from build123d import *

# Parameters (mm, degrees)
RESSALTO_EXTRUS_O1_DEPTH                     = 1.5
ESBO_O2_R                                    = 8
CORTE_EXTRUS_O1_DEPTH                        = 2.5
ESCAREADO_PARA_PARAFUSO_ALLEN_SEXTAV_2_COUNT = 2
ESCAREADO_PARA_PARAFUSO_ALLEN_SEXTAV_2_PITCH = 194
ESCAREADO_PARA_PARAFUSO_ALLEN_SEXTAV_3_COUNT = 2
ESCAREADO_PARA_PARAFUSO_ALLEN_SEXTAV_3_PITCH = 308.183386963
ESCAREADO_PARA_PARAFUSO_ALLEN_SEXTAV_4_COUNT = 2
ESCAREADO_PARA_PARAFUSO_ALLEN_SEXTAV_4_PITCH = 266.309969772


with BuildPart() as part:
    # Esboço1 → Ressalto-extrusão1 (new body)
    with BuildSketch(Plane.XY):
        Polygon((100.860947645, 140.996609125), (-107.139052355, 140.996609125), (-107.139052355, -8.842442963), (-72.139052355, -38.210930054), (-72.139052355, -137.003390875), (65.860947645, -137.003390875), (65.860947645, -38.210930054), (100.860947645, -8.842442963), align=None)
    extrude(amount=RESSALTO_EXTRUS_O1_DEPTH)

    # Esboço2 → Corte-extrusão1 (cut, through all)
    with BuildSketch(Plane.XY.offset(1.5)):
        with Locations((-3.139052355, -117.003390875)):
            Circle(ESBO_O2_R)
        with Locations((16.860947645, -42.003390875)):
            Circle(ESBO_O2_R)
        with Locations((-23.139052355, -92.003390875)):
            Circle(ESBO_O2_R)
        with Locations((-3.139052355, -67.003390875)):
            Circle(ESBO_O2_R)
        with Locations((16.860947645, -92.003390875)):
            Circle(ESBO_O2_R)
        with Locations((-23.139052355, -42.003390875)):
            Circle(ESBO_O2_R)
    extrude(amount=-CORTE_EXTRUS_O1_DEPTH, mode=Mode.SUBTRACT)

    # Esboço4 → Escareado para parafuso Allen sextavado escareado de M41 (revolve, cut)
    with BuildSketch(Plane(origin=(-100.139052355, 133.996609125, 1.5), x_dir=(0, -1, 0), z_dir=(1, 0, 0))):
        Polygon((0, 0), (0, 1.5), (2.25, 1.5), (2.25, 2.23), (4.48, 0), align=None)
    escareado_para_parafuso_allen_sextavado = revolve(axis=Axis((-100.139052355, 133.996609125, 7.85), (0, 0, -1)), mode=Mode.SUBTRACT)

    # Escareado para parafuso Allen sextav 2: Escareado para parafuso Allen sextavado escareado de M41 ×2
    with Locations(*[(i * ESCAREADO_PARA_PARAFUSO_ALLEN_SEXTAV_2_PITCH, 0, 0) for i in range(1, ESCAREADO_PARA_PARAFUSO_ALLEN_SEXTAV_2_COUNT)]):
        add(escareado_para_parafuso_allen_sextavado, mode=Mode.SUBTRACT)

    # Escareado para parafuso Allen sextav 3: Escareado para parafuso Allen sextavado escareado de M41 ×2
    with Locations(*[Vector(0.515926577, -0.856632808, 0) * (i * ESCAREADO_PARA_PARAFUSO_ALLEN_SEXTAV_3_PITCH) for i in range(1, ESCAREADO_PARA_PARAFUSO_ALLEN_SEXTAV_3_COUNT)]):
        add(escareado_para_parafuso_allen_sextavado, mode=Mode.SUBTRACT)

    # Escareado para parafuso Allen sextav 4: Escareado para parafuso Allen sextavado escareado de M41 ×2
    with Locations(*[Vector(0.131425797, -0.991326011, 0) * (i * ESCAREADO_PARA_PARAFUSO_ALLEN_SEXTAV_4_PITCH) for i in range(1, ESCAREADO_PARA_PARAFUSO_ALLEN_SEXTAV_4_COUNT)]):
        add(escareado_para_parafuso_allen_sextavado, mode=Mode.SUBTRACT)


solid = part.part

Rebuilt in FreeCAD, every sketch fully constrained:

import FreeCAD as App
import Part
import Sketcher
Q = App.Units.Quantity


def add_polygon(sketch, points):
    """Adds a closed chain of lines whose ends are joined by coincident constraints."""
    first, n = sketch.GeometryCount, len(points)
    for a, b in zip(points, points[1:] + points[:1]):
        sketch.addGeometry(Part.LineSegment(App.Vector(*a, 0), App.Vector(*b, 0)), False)
    for i in range(n):
        sketch.addConstraint(Sketcher.Constraint("Coincident", first + i, 2, first + (i + 1) % n, 1))

doc = App.newDocument("Part")
params = doc.addObject("Spreadsheet::Sheet", "Params")
for row, (alias, value) in enumerate([
    ("sketch1_width", "208 mm"),
    ("sketch1_width2", "138 mm"),
    ("pad1_length", "1.5 mm"),
    ("sketch2_diameter", "16 mm"),
    ("sketch3_height", "1.5 mm"),
    ("sketch3_width", "4.48 mm"),
    ("sketch3_width2", "2.25 mm"),
    ("groove_angle", "360 deg"),
    ("linearpattern_pitch", "194 mm"),
    ("linearpattern2_pitch", "308.183387 mm"),
    ("linearpattern3_pitch", "266.30997 mm"),
], start=1):
    params.set(f"A{row}", alias)
    params.set(f"B{row}", "=" + value)
    params.setAlias(f"B{row}", alias)

body = doc.addObject("PartDesign::Body", "Body")

# Sketch on XY plane
sketch1 = body.newObject("Sketcher::SketchObject", "Sketch")
sketch1.AttachmentSupport = (doc.getObject("XY_Plane"), [""])
sketch1.MapMode = "FlatFace"
add_polygon(sketch1, [(101, 141), (-107, 141), (-107, -9), (-72, -38), (-72, -137), (66, -137), (66, -38), (101, -9)])  # lines 0-7
sketch1.addConstraint([
    Sketcher.Constraint("Horizontal", 0),
    Sketcher.Constraint("Vertical", 1),
    Sketcher.Constraint("Vertical", 3),
    Sketcher.Constraint("Horizontal", 4),
    Sketcher.Constraint("Vertical", 5),
    Sketcher.Constraint("Vertical", 7),
    Sketcher.Constraint("Horizontal", 2, 2, 5, 2),
    Sketcher.Constraint("Horizontal", 1, 2, 6, 2),
    Sketcher.Constraint("Equal", 2, 6),
    Sketcher.Constraint("DistanceX", 0, 2, 0, 1, Q("208 mm")),
    Sketcher.Constraint("DistanceX", 4, 1, 4, 2, Q("138 mm")),
    Sketcher.Constraint("Angle", 2, Q("-40 deg")),
    Sketcher.Constraint("DistanceY", 3, 2, 0, 2, Q("278 mm")),
    Sketcher.Constraint("DistanceY", 3, 2, 3, 1, Q("98.792461 mm")),
    Sketcher.Constraint("DistanceY", -1, 1, 0, 2, Q("140.996609 mm")),
    Sketcher.Constraint("DistanceX", 0, 2, -1, 1, Q("107.139052 mm")),
])
sketch1.setExpression("Constraints[17]", "Params.sketch1_width")
sketch1.setExpression("Constraints[18]", "Params.sketch1_width2")
pad1 = body.newObject("PartDesign::Pad", "Pad")
pad1.Profile = sketch1
pad1.setExpression("Length", "Params.pad1_length")

# Sketch on XY plane
sketch2 = body.newObject("Sketcher::SketchObject", "Sketch001")
sketch2.AttachmentSupport = (doc.getObject("XY_Plane"), [""])
sketch2.MapMode = "FlatFace"
sketch2.AttachmentOffset = App.Placement(App.Vector(0, 0, 1.5), App.Rotation())
sketch2.addGeometry([
    Part.Circle(App.Vector(-3, -117, 0), App.Vector(0, 0, 1), 8),  # 0
    Part.Circle(App.Vector(17, -42, 0), App.Vector(0, 0, 1), 8),  # 1
    Part.Circle(App.Vector(-23, -92, 0), App.Vector(0, 0, 1), 8),  # 2
    Part.Circle(App.Vector(-3, -67, 0), App.Vector(0, 0, 1), 8),  # 3
    Part.Circle(App.Vector(17, -92, 0), App.Vector(0, 0, 1), 8),  # 4
    Part.Circle(App.Vector(-23, -42, 0), App.Vector(0, 0, 1), 8),  # 5
], False)
sketch2.addConstraint([
    Sketcher.Constraint("Equal", 0, 1),
    Sketcher.Constraint("Equal", 1, 2),
    Sketcher.Constraint("Equal", 2, 3),
    Sketcher.Constraint("Equal", 3, 4),
    Sketcher.Constraint("Equal", 4, 5),
    Sketcher.Constraint("Horizontal", 2, 3, 4, 3),
    Sketcher.Constraint("Horizontal", 1, 3, 5, 3),
    Sketcher.Constraint("Vertical", 0, 3, 3, 3),
    Sketcher.Constraint("Vertical", 1, 3, 4, 3),
    Sketcher.Constraint("Vertical", 2, 3, 5, 3),
    Sketcher.Constraint("Diameter", 0, Q("16 mm")),
    Sketcher.Constraint("DistanceX", 0, 3, 1, 3, Q("20 mm")),
    Sketcher.Constraint("DistanceY", 0, 3, 1, 3, Q("75 mm")),
    Sketcher.Constraint("DistanceX", 2, 3, 0, 3, Q("20 mm")),
    Sketcher.Constraint("DistanceY", 0, 3, 2, 3, Q("25 mm")),
    Sketcher.Constraint("DistanceY", 3, 3, 1, 3, Q("25 mm")),
    Sketcher.Constraint("DistanceY", 0, 3, -1, 1, Q("117.003391 mm")),
    Sketcher.Constraint("DistanceX", 0, 3, -1, 1, Q("3.139052 mm")),
])
sketch2.setExpression("Constraints[10]", "Params.sketch2_diameter")
pocket1 = body.newObject("PartDesign::Pocket", "Pocket")
pocket1.Profile = sketch2
pocket1.Type = "ThroughAll"

# Sketch on YZ plane
sketch3 = body.newObject("Sketcher::SketchObject", "Sketch002")
sketch3.AttachmentSupport = (doc.getObject("YZ_Plane"), [""])
sketch3.MapMode = "FlatFace"
sketch3.AttachmentOffset = App.Placement(App.Vector(0, 0, -100.139052), App.Rotation())
add_polygon(sketch3, [(134, 0), (134, 1.5), (129.5, 1.5), (131.7, -0.7), (131.7, 0)])  # lines 0-4
sketch3.addGeometry(Part.LineSegment(App.Vector(134, 1.5, 0), App.Vector(134, -0.7, 0)), True)  # axis
sketch3.addConstraint([
    Sketcher.Constraint("Vertical", 0),
    Sketcher.Constraint("Horizontal", 1),
    Sketcher.Constraint("Vertical", 3),
    Sketcher.Constraint("Horizontal", 4),
    Sketcher.Constraint("Vertical", 5),
    Sketcher.Constraint("Coincident", 5, 1, 0, 2),
    Sketcher.Constraint("PointOnObject", 3, 2, -1),
    Sketcher.Constraint("Horizontal", 2, 2, 5, 2),
    Sketcher.Constraint("Angle", 2, Q("-45 deg")),
    Sketcher.Constraint("DistanceY", 0, 1, 0, 2, Q("1.5 mm")),
    Sketcher.Constraint("DistanceX", 1, 2, 1, 1, Q("4.48 mm")),
    Sketcher.Constraint("DistanceX", 4, 1, 4, 2, Q("2.25 mm")),
    Sketcher.Constraint("DistanceX", -1, 1, 0, 2, Q("133.996609 mm")),
])
sketch3.setExpression("Constraints[14]", "Params.sketch3_height")
sketch3.setExpression("Constraints[15]", "Params.sketch3_width")
sketch3.setExpression("Constraints[16]", "Params.sketch3_width2")
groove = body.newObject("PartDesign::Groove", "Groove")
groove.Profile = sketch3
groove.ReferenceAxis = (sketch3, ["Axis0"])
groove.setExpression("Angle", "Params.groove_angle")
doc.recompute()

linearpattern = body.newObject("PartDesign::LinearPattern", "LinearPattern")
linearpattern.Originals = [groove]
linearpattern.Direction = (doc.getObject("X_Axis"), [""])
linearpattern.Mode = "offset"
linearpattern.setExpression("Offset", "Params.linearpattern_pitch")
linearpattern.Occurrences = 2
body.Tip = linearpattern
doc.recompute()

datumline = body.newObject("PartDesign::Line", "DatumLine")
datumline.Placement = App.Placement(App.Vector(0, 0, 0), App.Rotation(App.Vector(0, 0, 1), App.Vector(0.515926577, -0.856632808, 0)))
linearpattern2 = body.newObject("PartDesign::LinearPattern", "LinearPattern001")
linearpattern2.Originals = [groove]
linearpattern2.Direction = (datumline, [""])
linearpattern2.Mode = "offset"
linearpattern2.setExpression("Offset", "Params.linearpattern2_pitch")
linearpattern2.Occurrences = 2
body.Tip = linearpattern2
doc.recompute()

datumline2 = body.newObject("PartDesign::Line", "DatumLine001")
datumline2.Placement = App.Placement(App.Vector(0, 0, 0), App.Rotation(App.Vector(0, 0, 1), App.Vector(0.131425797, -0.991326011, 0)))
linearpattern3 = body.newObject("PartDesign::LinearPattern", "LinearPattern002")
linearpattern3.Originals = [groove]
linearpattern3.Direction = (datumline2, [""])
linearpattern3.Mode = "offset"
linearpattern3.setExpression("Offset", "Params.linearpattern3_pitch")
linearpattern3.Occurrences = 2
body.Tip = linearpattern3

doc.recompute()
